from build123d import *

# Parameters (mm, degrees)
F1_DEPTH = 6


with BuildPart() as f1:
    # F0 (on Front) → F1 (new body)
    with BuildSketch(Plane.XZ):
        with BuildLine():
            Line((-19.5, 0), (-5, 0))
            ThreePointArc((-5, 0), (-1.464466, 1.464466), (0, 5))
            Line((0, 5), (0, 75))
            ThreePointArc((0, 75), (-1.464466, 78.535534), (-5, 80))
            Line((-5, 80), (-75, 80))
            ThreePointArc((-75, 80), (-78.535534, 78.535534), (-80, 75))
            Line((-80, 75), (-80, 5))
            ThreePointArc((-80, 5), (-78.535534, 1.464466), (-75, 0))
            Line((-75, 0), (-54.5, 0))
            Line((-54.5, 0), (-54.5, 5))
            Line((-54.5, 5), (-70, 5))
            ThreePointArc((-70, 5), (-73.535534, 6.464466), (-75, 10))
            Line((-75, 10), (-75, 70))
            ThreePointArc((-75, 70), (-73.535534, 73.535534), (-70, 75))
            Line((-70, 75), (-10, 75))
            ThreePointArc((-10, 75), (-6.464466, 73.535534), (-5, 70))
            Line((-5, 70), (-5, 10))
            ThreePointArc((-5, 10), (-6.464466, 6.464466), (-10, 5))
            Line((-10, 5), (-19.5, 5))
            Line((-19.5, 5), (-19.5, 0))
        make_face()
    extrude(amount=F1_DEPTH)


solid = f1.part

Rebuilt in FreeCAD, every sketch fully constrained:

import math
import FreeCAD as App
import Part
import Sketcher

V = App.Vector

doc = App.newDocument("Part")
params = doc.addObject("Spreadsheet::Sheet", "Params")
for row, (alias, value) in enumerate([
    ("sketch1_radius", "5 mm"),
    ("sketch1_width", "70 mm"),
    ("sketch1_width2", "14.5 mm"),
    ("sketch1_width3", "20.5 mm"),
    ("pad1_length", "6 mm"),
], start=1):
    params.set(f"A{row}", alias)
    params.set(f"B{row}", "=" + value)
    params.setAlias(f"B{row}", alias)

body = doc.addObject("PartDesign::Body", "Body")

sketch1 = body.newObject("Sketcher::SketchObject", "Sketch")
sketch1.AttachmentSupport = (doc.getObject("XZ_Plane"), [""])
sketch1.MapMode = "FlatFace"
sketch1.addGeometry(Part.LineSegment(V(-19.5, 0, 0), V(-5, 0, 0)), False)
sketch1.addGeometry(Part.ArcOfCircle(Part.Circle(V(-5, 5, 0), V(0, 0, 1), 5), math.radians(-90), math.radians(0)), False)
sketch1.addGeometry(Part.LineSegment(V(0, 5, 0), V(0, 75, 0)), False)
sketch1.addGeometry(Part.ArcOfCircle(Part.Circle(V(-5, 75, 0), V(0, 0, 1), 5), math.radians(0), math.radians(90)), False)
sketch1.addGeometry(Part.LineSegment(V(-5, 80, 0), V(-75, 80, 0)), False)
sketch1.addGeometry(Part.ArcOfCircle(Part.Circle(V(-75, 75, 0), V(0, 0, 1), 5), math.radians(90), math.radians(180)), False)
sketch1.addGeometry(Part.LineSegment(V(-80, 75, 0), V(-80, 5, 0)), False)
sketch1.addGeometry(Part.ArcOfCircle(Part.Circle(V(-75, 5, 0), V(0, 0, 1), 5), math.radians(180), math.radians(270)), False)
sketch1.addGeometry(Part.LineSegment(V(-75, 0, 0), V(-54.5, 0, 0)), False)
sketch1.addGeometry(Part.LineSegment(V(-54.5, 0, 0), V(-54.5, 5, 0)), False)
sketch1.addGeometry(Part.LineSegment(V(-54.5, 5, 0), V(-70, 5, 0)), False)
sketch1.addGeometry(Part.ArcOfCircle(Part.Circle(V(-70, 10, 0), V(0, 0, 1), 5), math.radians(180), math.radians(270)), False)
sketch1.addGeometry(Part.LineSegment(V(-75, 10, 0), V(-75, 70, 0)), False)
sketch1.addGeometry(Part.ArcOfCircle(Part.Circle(V(-70, 70, 0), V(0, 0, 1), 5), math.radians(90), math.radians(180)), False)
sketch1.addGeometry(Part.LineSegment(V(-70, 75, 0), V(-10, 75, 0)), False)
sketch1.addGeometry(Part.ArcOfCircle(Part.Circle(V(-10, 70, 0), V(0, 0, 1), 5), math.radians(0), math.radians(90)), False)
sketch1.addGeometry(Part.LineSegment(V(-5, 70, 0), V(-5, 10, 0)), False)
sketch1.addGeometry(Part.ArcOfCircle(Part.Circle(V(-10, 10, 0), V(0, 0, 1), 5), math.radians(-90), math.radians(0)), False)
sketch1.addGeometry(Part.LineSegment(V(-10, 5, 0), V(-19.5, 5, 0)), False)
sketch1.addGeometry(Part.LineSegment(V(-19.5, 5, 0), V(-19.5, 0, 0)), False)
sketch1.addConstraint(Sketcher.Constraint("Tangent", 0, 2, 1, 1))
sketch1.addConstraint(Sketcher.Constraint("Tangent", 1, 2, 2, 1))
sketch1.addConstraint(Sketcher.Constraint("Tangent", 2, 2, 3, 1))
sketch1.addConstraint(Sketcher.Constraint("Tangent", 3, 2, 4, 1))
sketch1.addConstraint(Sketcher.Constraint("Tangent", 4, 2, 5, 1))
sketch1.addConstraint(Sketcher.Constraint("Tangent", 5, 2, 6, 1))
sketch1.addConstraint(Sketcher.Constraint("Tangent", 6, 2, 7, 1))
sketch1.addConstraint(Sketcher.Constraint("Tangent", 7, 2, 8, 1))
sketch1.addConstraint(Sketcher.Constraint("Coincident", 8, 2, 9, 1))
sketch1.addConstraint(Sketcher.Constraint("Coincident", 9, 2, 10, 1))
sketch1.addConstraint(Sketcher.Constraint("Tangent", 10, 2, 11, 2))
sketch1.addConstraint(Sketcher.Constraint("Tangent", 11, 1, 12, 1))
sketch1.addConstraint(Sketcher.Constraint("Tangent", 12, 2, 13, 2))
sketch1.addConstraint(Sketcher.Constraint("Tangent", 13, 1, 14, 1))
sketch1.addConstraint(Sketcher.Constraint("Tangent", 14, 2, 15, 2))
sketch1.addConstraint(Sketcher.Constraint("Tangent", 15, 1, 16, 1))
sketch1.addConstraint(Sketcher.Constraint("Tangent", 16, 2, 17, 2))
sketch1.addConstraint(Sketcher.Constraint("Tangent", 17, 1, 18, 1))
sketch1.addConstraint(Sketcher.Constraint("Coincident", 18, 2, 19, 1))
sketch1.addConstraint(Sketcher.Constraint("Coincident", 19, 2, 0, 1))
sketch1.addConstraint(Sketcher.Constraint("Horizontal", 0))
sketch1.addConstraint(Sketcher.Constraint("Vertical", 2))
sketch1.addConstraint(Sketcher.Constraint("Horizontal", 4))
sketch1.addConstraint(Sketcher.Constraint("Vertical", 6))
sketch1.addConstraint(Sketcher.Constraint("Horizontal", 8))
sketch1.addConstraint(Sketcher.Constraint("Vertical", 9))
sketch1.addConstraint(Sketcher.Constraint("Horizontal", 10))
sketch1.addConstraint(Sketcher.Constraint("Vertical", 12))
sketch1.addConstraint(Sketcher.Constraint("Horizontal", 14))
sketch1.addConstraint(Sketcher.Constraint("Vertical", 16))
sketch1.addConstraint(Sketcher.Constraint("Horizontal", 18))
sketch1.addConstraint(Sketcher.Constraint("Vertical", 19))
sketch1.addConstraint(Sketcher.Constraint("Equal", 1, 3))
sketch1.addConstraint(Sketcher.Constraint("Equal", 3, 5))
sketch1.addConstraint(Sketcher.Constraint("Equal", 5, 7))
sketch1.addConstraint(Sketcher.Constraint("Equal", 7, 11))
sketch1.addConstraint(Sketcher.Constraint("Equal", 11, 13))
sketch1.addConstraint(Sketcher.Constraint("Equal", 13, 15))
sketch1.addConstraint(Sketcher.Constraint("Equal", 15, 17))
sketch1.addConstraint(Sketcher.Constraint("PointOnObject", 0, 2, -1))
sketch1.addConstraint(Sketcher.Constraint("PointOnObject", 1, 2, -2))
sketch1.addConstraint(Sketcher.Constraint("PointOnObject", 7, 2, -1))
sketch1.addConstraint(Sketcher.Constraint("Horizontal", 11, 3, 17, 3))
sketch1.addConstraint(Sketcher.Constraint("Horizontal", 6, 2, 9, 2))
sketch1.addConstraint(Sketcher.Constraint("Horizontal", 5, 2, 13, 1))
sketch1.addConstraint(Sketcher.Constraint("Vertical", 7, 2, 11, 1))
sketch1.addConstraint(Sketcher.Constraint("Vertical", 3, 2, 15, 1))
sketch1.addConstraint(Sketcher.Constraint("Equal", 4, 2))
sketch1.addConstraint(Sketcher.Constraint("Radius", 1, 5.0))
sketch1.addConstraint(Sketcher.Constraint("DistanceX", 4, 2, 4, 1, 70.0))
sketch1.addConstraint(Sketcher.Constraint("DistanceX", 0, 1, 0, 2, 14.5))
sketch1.addConstraint(Sketcher.Constraint("DistanceX", 8, 1, 8, 2, 20.5))
sketch1.setExpression("Constraints[48]", "Params.sketch1_radius")
sketch1.setExpression("Constraints[49]", "Params.sketch1_width")
sketch1.setExpression("Constraints[50]", "Params.sketch1_width2")
sketch1.setExpression("Constraints[51]", "Params.sketch1_width3")
pad1 = body.newObject("PartDesign::Pad", "Pad")
pad1.Profile = sketch1
pad1.setExpression("Length", "Params.pad1_length")

doc.recompute()
